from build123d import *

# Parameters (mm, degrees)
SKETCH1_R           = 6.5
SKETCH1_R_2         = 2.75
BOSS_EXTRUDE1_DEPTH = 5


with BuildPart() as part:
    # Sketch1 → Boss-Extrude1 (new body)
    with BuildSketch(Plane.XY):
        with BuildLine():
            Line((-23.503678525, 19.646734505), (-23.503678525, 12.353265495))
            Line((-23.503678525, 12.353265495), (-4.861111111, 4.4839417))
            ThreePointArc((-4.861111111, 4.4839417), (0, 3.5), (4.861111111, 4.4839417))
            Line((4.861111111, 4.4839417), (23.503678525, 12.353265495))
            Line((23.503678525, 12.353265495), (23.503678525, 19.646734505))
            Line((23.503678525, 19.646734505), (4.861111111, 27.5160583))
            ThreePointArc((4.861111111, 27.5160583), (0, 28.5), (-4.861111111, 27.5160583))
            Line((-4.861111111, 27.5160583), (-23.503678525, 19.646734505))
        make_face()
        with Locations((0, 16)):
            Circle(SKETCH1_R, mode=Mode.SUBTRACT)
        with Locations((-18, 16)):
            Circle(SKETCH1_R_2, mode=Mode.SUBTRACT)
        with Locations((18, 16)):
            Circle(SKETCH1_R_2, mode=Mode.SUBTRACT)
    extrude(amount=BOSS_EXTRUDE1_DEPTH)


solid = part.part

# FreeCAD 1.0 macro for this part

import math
import FreeCAD as App
import Part
import Sketcher
from FreeCAD import Vector

doc = App.newDocument("Part")
body = doc.addObject("PartDesign::Body", "Body")

# Sketch on XY plane
sketch1 = body.newObject("Sketcher::SketchObject", "Sketch")
sketch1.AttachmentSupport = (doc.getObject("XY_Plane"), [""])
sketch1.MapMode = "FlatFace"
sketch1.addGeometry([
    Part.LineSegment(Vector(-23.503679, 19.646735, 0), Vector(-23.503679, 12.353265, 0)),  # 0
    Part.LineSegment(Vector(-23.503679, 12.353265, 0), Vector(-4.861111, 4.483942, 0)),  # 1
    Part.ArcOfCircle(Part.Circle(Vector(0, 16, 0), Vector(0, 0, 1), 12.5), math.radians(-112.88538), math.radians(-67.11462)),  # 2
    Part.LineSegment(Vector(4.861111, 4.483942, 0), Vector(23.503679, 12.353265, 0)),  # 3
    Part.LineSegment(Vector(23.503679, 12.353265, 0), Vector(23.503679, 19.646735, 0)),  # 4
    Part.LineSegment(Vector(23.503679, 19.646735, 0), Vector(4.861111, 27.516058, 0)),  # 5
    Part.ArcOfCircle(Part.Circle(Vector(0, 16, 0), Vector(0, 0, 1), 12.5), math.radians(67.11462), math.radians(112.88538)),  # 6
    Part.LineSegment(Vector(-4.861111, 27.516058, 0), Vector(-23.503679, 19.646735, 0)),  # 7
    Part.Circle(Vector(-18, 16, 0), Vector(0, 0, 1), 2.75),  # 8
    Part.Circle(Vector(0, 16, 0), Vector(0, 0, 1), 6.5),  # 9
    Part.Circle(Vector(18, 16, 0), Vector(0, 0, 1), 2.75),  # 10
], False)
sketch1.addConstraint([
    Sketcher.Constraint("Coincident", 0, 2, 1, 1),
    Sketcher.Constraint("Tangent", 1, 2, 2, 1),
    Sketcher.Constraint("Tangent", 2, 2, 3, 1),
    Sketcher.Constraint("Coincident", 3, 2, 4, 1),
    Sketcher.Constraint("Coincident", 4, 2, 5, 1),
    Sketcher.Constraint("Tangent", 5, 2, 6, 1),
    Sketcher.Constraint("Tangent", 6, 2, 7, 1),
    Sketcher.Constraint("Coincident", 7, 2, 0, 1),
    Sketcher.Constraint("Vertical", 0),
    Sketcher.Constraint("Vertical", 4),
    Sketcher.Constraint("Coincident", 6, 3, 2, 3),
    Sketcher.Constraint("Coincident", 9, 3, 2, 3),
    Sketcher.Constraint("Equal", 2, 6),
    Sketcher.Constraint("Equal", 8, 10),
    Sketcher.Constraint("Symmetric", 8, 3, 10, 3, -2),
    Sketcher.Constraint("Symmetric", 1, 2, 2, 2, -2),
    Sketcher.Constraint("Symmetric", 4, 2, 7, 2, -2),
    Sketcher.Constraint("Parallel", 1, 5),
    Sketcher.Constraint("Horizontal", 6, 3, 8, 3),
    Sketcher.Constraint("Diameter", 9, 13.0),
    Sketcher.Constraint("Diameter", 8, 5.5),
    Sketcher.Constraint("Radius", 2, 12.5),
    Sketcher.Constraint("DistanceY", -1, 1, 2, 3, 16.0),
    Sketcher.Constraint("DistanceX", 8, 3, -1, 1, 18.0),
    Sketcher.Constraint("DistanceY", 0, 2, 0, 1, 7.293469),
    Sketcher.Constraint("DistanceX", 0, 2, -1, 1, 23.503679),
])
pad1 = body.newObject("PartDesign::Pad", "Pad")
pad1.Profile = sketch1
pad1.Length = 5

doc.recompute()
